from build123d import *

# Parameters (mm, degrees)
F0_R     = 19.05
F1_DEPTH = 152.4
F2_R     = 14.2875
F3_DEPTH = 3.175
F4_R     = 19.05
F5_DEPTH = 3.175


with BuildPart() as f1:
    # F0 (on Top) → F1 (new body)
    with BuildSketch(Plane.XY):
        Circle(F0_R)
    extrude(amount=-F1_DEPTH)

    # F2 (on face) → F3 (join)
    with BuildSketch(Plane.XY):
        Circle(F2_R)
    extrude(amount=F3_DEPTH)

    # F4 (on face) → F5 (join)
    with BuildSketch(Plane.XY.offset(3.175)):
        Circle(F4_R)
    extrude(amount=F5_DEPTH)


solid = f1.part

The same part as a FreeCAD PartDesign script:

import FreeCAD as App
import Part
import Sketcher
from FreeCAD import Vector
Q = App.Units.Quantity

doc = App.newDocument("Part")
body = doc.addObject("PartDesign::Body", "Body")

sketch1 = doc.addObject("Sketcher::SketchObject", "Sketch")
body.addObject(sketch1)
sketch1.AttachmentSupport = (doc.XY_Plane, [""])
sketch1.MapMode = "FlatFace"
sketch1.addGeometry(Part.Circle(Vector(0, 0, 0), Vector(0, 0, 1), 19), False)
sketch1.addConstraint([
    Sketcher.Constraint("Coincident", 0, 3, -1, 1),
    Sketcher.Constraint("Diameter", 0, Q("1.5 in")),
])
pad1 = doc.addObject("PartDesign::Pad", "Pad")
body.addObject(pad1)
pad1.Profile = sketch1
pad1.Length = Q("6 in")
pad1.Reversed = True

sketch2 = doc.addObject("Sketcher::SketchObject", "Sketch001")
body.addObject(sketch2)
sketch2.AttachmentSupport = (doc.XY_Plane, [""])
sketch2.MapMode = "FlatFace"
sketch2.addGeometry(Part.Circle(Vector(0, 0, 0), Vector(0, 0, 1), 14), False)
sketch2.addConstraint([
    Sketcher.Constraint("Coincident", 0, 3, -1, 1),
    Sketcher.Constraint("Diameter", 0, Q("1.125 in")),
])
pad2 = doc.addObject("PartDesign::Pad", "Pad001")
body.addObject(pad2)
pad2.Profile = sketch2
pad2.Length = Q("0.125 in")

sketch3 = doc.addObject("Sketcher::SketchObject", "Sketch002")
body.addObject(sketch3)
sketch3.AttachmentSupport = (doc.XY_Plane, [""])
sketch3.MapMode = "FlatFace"
sketch3.AttachmentOffset = App.Placement(Vector(0, 0, 0.125 * 25.4), App.Rotation())
sketch3.addGeometry(Part.Circle(Vector(0, 0, 0), Vector(0, 0, 1), 19), False)
sketch3.addConstraint([
    Sketcher.Constraint("Coincident", 0, 3, -1, 1),
    Sketcher.Constraint("Diameter", 0, Q("1.5 in")),
])
pad3 = doc.addObject("PartDesign::Pad", "Pad002")
body.addObject(pad3)
pad3.Profile = sketch3
pad3.Length = Q("0.125 in")

doc.recompute()
